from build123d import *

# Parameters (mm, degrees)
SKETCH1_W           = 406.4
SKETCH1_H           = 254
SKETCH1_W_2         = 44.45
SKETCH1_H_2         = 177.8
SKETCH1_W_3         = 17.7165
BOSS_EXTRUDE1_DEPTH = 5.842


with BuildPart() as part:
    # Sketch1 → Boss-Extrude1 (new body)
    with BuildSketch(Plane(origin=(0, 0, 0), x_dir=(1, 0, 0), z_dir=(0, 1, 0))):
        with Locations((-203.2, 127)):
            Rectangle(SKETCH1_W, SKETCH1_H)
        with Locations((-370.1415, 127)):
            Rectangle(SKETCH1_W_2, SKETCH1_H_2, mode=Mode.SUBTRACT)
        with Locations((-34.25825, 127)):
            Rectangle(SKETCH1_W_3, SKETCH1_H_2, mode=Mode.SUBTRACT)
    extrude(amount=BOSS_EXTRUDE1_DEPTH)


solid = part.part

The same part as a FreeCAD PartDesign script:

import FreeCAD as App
import Part
import Sketcher
from FreeCAD import Vector
Q = App.Units.Quantity


def add_polygon(sketch, points):
    """Adds a closed chain of lines whose ends are joined by coincident constraints."""
    first, n = sketch.GeometryCount, len(points)
    for a, b in zip(points, points[1:] + points[:1]):
        sketch.addGeometry(Part.LineSegment(App.Vector(*a, 0), App.Vector(*b, 0)), False)
    for i in range(n):
        sketch.addConstraint(Sketcher.Constraint("Coincident", first + i, 2, first + (i + 1) % n, 1))

doc = App.newDocument("Part")
body = doc.addObject("PartDesign::Body", "Body")

sketch1 = body.newObject("Sketcher::SketchObject", "Sketch")
sketch1.AttachmentSupport = (doc.getObject("XZ_Plane"), [""])
sketch1.MapMode = "FlatFace"
add_polygon(sketch1, [(-406, -254), (-406, 0), (0, 0), (0, -254)])
add_polygon(sketch1, [(-348, -38), (-392, -38), (-392, -216), (-348, -216)])
add_polygon(sketch1, [(-25, -38), (-43, -38), (-43, -216), (-25, -216)])
sketch1.addConstraint([
    Sketcher.Constraint("Vertical", 0),
    Sketcher.Constraint("Horizontal", 1),
    Sketcher.Constraint("Vertical", 2),
    Sketcher.Constraint("Horizontal", 3),
    Sketcher.Constraint("Horizontal", 4),
    Sketcher.Constraint("Vertical", 5),
    Sketcher.Constraint("Horizontal", 6),
    Sketcher.Constraint("Vertical", 7),
    Sketcher.Constraint("Horizontal", 8),
    Sketcher.Constraint("Vertical", 9),
    Sketcher.Constraint("Horizontal", 10),
    Sketcher.Constraint("Vertical", 11),
    Sketcher.Constraint("Coincident", 1, 2, -1, 1),
    Sketcher.Constraint("Horizontal", 7, 2, 8, 2),
    Sketcher.Constraint("Horizontal", 6, 2, 9, 2),
    Sketcher.Constraint("DistanceX", 1, 1, 1, 2, Q("16 in")),
    Sketcher.Constraint("DistanceY", 0, 1, 0, 2, Q("10 in")),
    Sketcher.Constraint("DistanceY", 5, 2, 5, 1, Q("7 in")),
    Sketcher.Constraint("DistanceX", 10, 2, -1, 1, Q("1 in")),
    Sketcher.Constraint("DistanceX", 7, 2, 8, 2, Q("12 in")),
    Sketcher.Constraint("DistanceX", 4, 2, 4, 1, Q("1.75 in")),
    Sketcher.Constraint("DistanceY", 4, 2, -1, 1, Q("1.5 in")),
    Sketcher.Constraint("DistanceX", 8, 2, 8, 1, Q("0.6975 in")),
])
pad1 = body.newObject("PartDesign::Pad", "Pad")
pad1.Profile = sketch1
pad1.Length = Q("0.23 in")
pad1.Reversed = True

doc.recompute()
